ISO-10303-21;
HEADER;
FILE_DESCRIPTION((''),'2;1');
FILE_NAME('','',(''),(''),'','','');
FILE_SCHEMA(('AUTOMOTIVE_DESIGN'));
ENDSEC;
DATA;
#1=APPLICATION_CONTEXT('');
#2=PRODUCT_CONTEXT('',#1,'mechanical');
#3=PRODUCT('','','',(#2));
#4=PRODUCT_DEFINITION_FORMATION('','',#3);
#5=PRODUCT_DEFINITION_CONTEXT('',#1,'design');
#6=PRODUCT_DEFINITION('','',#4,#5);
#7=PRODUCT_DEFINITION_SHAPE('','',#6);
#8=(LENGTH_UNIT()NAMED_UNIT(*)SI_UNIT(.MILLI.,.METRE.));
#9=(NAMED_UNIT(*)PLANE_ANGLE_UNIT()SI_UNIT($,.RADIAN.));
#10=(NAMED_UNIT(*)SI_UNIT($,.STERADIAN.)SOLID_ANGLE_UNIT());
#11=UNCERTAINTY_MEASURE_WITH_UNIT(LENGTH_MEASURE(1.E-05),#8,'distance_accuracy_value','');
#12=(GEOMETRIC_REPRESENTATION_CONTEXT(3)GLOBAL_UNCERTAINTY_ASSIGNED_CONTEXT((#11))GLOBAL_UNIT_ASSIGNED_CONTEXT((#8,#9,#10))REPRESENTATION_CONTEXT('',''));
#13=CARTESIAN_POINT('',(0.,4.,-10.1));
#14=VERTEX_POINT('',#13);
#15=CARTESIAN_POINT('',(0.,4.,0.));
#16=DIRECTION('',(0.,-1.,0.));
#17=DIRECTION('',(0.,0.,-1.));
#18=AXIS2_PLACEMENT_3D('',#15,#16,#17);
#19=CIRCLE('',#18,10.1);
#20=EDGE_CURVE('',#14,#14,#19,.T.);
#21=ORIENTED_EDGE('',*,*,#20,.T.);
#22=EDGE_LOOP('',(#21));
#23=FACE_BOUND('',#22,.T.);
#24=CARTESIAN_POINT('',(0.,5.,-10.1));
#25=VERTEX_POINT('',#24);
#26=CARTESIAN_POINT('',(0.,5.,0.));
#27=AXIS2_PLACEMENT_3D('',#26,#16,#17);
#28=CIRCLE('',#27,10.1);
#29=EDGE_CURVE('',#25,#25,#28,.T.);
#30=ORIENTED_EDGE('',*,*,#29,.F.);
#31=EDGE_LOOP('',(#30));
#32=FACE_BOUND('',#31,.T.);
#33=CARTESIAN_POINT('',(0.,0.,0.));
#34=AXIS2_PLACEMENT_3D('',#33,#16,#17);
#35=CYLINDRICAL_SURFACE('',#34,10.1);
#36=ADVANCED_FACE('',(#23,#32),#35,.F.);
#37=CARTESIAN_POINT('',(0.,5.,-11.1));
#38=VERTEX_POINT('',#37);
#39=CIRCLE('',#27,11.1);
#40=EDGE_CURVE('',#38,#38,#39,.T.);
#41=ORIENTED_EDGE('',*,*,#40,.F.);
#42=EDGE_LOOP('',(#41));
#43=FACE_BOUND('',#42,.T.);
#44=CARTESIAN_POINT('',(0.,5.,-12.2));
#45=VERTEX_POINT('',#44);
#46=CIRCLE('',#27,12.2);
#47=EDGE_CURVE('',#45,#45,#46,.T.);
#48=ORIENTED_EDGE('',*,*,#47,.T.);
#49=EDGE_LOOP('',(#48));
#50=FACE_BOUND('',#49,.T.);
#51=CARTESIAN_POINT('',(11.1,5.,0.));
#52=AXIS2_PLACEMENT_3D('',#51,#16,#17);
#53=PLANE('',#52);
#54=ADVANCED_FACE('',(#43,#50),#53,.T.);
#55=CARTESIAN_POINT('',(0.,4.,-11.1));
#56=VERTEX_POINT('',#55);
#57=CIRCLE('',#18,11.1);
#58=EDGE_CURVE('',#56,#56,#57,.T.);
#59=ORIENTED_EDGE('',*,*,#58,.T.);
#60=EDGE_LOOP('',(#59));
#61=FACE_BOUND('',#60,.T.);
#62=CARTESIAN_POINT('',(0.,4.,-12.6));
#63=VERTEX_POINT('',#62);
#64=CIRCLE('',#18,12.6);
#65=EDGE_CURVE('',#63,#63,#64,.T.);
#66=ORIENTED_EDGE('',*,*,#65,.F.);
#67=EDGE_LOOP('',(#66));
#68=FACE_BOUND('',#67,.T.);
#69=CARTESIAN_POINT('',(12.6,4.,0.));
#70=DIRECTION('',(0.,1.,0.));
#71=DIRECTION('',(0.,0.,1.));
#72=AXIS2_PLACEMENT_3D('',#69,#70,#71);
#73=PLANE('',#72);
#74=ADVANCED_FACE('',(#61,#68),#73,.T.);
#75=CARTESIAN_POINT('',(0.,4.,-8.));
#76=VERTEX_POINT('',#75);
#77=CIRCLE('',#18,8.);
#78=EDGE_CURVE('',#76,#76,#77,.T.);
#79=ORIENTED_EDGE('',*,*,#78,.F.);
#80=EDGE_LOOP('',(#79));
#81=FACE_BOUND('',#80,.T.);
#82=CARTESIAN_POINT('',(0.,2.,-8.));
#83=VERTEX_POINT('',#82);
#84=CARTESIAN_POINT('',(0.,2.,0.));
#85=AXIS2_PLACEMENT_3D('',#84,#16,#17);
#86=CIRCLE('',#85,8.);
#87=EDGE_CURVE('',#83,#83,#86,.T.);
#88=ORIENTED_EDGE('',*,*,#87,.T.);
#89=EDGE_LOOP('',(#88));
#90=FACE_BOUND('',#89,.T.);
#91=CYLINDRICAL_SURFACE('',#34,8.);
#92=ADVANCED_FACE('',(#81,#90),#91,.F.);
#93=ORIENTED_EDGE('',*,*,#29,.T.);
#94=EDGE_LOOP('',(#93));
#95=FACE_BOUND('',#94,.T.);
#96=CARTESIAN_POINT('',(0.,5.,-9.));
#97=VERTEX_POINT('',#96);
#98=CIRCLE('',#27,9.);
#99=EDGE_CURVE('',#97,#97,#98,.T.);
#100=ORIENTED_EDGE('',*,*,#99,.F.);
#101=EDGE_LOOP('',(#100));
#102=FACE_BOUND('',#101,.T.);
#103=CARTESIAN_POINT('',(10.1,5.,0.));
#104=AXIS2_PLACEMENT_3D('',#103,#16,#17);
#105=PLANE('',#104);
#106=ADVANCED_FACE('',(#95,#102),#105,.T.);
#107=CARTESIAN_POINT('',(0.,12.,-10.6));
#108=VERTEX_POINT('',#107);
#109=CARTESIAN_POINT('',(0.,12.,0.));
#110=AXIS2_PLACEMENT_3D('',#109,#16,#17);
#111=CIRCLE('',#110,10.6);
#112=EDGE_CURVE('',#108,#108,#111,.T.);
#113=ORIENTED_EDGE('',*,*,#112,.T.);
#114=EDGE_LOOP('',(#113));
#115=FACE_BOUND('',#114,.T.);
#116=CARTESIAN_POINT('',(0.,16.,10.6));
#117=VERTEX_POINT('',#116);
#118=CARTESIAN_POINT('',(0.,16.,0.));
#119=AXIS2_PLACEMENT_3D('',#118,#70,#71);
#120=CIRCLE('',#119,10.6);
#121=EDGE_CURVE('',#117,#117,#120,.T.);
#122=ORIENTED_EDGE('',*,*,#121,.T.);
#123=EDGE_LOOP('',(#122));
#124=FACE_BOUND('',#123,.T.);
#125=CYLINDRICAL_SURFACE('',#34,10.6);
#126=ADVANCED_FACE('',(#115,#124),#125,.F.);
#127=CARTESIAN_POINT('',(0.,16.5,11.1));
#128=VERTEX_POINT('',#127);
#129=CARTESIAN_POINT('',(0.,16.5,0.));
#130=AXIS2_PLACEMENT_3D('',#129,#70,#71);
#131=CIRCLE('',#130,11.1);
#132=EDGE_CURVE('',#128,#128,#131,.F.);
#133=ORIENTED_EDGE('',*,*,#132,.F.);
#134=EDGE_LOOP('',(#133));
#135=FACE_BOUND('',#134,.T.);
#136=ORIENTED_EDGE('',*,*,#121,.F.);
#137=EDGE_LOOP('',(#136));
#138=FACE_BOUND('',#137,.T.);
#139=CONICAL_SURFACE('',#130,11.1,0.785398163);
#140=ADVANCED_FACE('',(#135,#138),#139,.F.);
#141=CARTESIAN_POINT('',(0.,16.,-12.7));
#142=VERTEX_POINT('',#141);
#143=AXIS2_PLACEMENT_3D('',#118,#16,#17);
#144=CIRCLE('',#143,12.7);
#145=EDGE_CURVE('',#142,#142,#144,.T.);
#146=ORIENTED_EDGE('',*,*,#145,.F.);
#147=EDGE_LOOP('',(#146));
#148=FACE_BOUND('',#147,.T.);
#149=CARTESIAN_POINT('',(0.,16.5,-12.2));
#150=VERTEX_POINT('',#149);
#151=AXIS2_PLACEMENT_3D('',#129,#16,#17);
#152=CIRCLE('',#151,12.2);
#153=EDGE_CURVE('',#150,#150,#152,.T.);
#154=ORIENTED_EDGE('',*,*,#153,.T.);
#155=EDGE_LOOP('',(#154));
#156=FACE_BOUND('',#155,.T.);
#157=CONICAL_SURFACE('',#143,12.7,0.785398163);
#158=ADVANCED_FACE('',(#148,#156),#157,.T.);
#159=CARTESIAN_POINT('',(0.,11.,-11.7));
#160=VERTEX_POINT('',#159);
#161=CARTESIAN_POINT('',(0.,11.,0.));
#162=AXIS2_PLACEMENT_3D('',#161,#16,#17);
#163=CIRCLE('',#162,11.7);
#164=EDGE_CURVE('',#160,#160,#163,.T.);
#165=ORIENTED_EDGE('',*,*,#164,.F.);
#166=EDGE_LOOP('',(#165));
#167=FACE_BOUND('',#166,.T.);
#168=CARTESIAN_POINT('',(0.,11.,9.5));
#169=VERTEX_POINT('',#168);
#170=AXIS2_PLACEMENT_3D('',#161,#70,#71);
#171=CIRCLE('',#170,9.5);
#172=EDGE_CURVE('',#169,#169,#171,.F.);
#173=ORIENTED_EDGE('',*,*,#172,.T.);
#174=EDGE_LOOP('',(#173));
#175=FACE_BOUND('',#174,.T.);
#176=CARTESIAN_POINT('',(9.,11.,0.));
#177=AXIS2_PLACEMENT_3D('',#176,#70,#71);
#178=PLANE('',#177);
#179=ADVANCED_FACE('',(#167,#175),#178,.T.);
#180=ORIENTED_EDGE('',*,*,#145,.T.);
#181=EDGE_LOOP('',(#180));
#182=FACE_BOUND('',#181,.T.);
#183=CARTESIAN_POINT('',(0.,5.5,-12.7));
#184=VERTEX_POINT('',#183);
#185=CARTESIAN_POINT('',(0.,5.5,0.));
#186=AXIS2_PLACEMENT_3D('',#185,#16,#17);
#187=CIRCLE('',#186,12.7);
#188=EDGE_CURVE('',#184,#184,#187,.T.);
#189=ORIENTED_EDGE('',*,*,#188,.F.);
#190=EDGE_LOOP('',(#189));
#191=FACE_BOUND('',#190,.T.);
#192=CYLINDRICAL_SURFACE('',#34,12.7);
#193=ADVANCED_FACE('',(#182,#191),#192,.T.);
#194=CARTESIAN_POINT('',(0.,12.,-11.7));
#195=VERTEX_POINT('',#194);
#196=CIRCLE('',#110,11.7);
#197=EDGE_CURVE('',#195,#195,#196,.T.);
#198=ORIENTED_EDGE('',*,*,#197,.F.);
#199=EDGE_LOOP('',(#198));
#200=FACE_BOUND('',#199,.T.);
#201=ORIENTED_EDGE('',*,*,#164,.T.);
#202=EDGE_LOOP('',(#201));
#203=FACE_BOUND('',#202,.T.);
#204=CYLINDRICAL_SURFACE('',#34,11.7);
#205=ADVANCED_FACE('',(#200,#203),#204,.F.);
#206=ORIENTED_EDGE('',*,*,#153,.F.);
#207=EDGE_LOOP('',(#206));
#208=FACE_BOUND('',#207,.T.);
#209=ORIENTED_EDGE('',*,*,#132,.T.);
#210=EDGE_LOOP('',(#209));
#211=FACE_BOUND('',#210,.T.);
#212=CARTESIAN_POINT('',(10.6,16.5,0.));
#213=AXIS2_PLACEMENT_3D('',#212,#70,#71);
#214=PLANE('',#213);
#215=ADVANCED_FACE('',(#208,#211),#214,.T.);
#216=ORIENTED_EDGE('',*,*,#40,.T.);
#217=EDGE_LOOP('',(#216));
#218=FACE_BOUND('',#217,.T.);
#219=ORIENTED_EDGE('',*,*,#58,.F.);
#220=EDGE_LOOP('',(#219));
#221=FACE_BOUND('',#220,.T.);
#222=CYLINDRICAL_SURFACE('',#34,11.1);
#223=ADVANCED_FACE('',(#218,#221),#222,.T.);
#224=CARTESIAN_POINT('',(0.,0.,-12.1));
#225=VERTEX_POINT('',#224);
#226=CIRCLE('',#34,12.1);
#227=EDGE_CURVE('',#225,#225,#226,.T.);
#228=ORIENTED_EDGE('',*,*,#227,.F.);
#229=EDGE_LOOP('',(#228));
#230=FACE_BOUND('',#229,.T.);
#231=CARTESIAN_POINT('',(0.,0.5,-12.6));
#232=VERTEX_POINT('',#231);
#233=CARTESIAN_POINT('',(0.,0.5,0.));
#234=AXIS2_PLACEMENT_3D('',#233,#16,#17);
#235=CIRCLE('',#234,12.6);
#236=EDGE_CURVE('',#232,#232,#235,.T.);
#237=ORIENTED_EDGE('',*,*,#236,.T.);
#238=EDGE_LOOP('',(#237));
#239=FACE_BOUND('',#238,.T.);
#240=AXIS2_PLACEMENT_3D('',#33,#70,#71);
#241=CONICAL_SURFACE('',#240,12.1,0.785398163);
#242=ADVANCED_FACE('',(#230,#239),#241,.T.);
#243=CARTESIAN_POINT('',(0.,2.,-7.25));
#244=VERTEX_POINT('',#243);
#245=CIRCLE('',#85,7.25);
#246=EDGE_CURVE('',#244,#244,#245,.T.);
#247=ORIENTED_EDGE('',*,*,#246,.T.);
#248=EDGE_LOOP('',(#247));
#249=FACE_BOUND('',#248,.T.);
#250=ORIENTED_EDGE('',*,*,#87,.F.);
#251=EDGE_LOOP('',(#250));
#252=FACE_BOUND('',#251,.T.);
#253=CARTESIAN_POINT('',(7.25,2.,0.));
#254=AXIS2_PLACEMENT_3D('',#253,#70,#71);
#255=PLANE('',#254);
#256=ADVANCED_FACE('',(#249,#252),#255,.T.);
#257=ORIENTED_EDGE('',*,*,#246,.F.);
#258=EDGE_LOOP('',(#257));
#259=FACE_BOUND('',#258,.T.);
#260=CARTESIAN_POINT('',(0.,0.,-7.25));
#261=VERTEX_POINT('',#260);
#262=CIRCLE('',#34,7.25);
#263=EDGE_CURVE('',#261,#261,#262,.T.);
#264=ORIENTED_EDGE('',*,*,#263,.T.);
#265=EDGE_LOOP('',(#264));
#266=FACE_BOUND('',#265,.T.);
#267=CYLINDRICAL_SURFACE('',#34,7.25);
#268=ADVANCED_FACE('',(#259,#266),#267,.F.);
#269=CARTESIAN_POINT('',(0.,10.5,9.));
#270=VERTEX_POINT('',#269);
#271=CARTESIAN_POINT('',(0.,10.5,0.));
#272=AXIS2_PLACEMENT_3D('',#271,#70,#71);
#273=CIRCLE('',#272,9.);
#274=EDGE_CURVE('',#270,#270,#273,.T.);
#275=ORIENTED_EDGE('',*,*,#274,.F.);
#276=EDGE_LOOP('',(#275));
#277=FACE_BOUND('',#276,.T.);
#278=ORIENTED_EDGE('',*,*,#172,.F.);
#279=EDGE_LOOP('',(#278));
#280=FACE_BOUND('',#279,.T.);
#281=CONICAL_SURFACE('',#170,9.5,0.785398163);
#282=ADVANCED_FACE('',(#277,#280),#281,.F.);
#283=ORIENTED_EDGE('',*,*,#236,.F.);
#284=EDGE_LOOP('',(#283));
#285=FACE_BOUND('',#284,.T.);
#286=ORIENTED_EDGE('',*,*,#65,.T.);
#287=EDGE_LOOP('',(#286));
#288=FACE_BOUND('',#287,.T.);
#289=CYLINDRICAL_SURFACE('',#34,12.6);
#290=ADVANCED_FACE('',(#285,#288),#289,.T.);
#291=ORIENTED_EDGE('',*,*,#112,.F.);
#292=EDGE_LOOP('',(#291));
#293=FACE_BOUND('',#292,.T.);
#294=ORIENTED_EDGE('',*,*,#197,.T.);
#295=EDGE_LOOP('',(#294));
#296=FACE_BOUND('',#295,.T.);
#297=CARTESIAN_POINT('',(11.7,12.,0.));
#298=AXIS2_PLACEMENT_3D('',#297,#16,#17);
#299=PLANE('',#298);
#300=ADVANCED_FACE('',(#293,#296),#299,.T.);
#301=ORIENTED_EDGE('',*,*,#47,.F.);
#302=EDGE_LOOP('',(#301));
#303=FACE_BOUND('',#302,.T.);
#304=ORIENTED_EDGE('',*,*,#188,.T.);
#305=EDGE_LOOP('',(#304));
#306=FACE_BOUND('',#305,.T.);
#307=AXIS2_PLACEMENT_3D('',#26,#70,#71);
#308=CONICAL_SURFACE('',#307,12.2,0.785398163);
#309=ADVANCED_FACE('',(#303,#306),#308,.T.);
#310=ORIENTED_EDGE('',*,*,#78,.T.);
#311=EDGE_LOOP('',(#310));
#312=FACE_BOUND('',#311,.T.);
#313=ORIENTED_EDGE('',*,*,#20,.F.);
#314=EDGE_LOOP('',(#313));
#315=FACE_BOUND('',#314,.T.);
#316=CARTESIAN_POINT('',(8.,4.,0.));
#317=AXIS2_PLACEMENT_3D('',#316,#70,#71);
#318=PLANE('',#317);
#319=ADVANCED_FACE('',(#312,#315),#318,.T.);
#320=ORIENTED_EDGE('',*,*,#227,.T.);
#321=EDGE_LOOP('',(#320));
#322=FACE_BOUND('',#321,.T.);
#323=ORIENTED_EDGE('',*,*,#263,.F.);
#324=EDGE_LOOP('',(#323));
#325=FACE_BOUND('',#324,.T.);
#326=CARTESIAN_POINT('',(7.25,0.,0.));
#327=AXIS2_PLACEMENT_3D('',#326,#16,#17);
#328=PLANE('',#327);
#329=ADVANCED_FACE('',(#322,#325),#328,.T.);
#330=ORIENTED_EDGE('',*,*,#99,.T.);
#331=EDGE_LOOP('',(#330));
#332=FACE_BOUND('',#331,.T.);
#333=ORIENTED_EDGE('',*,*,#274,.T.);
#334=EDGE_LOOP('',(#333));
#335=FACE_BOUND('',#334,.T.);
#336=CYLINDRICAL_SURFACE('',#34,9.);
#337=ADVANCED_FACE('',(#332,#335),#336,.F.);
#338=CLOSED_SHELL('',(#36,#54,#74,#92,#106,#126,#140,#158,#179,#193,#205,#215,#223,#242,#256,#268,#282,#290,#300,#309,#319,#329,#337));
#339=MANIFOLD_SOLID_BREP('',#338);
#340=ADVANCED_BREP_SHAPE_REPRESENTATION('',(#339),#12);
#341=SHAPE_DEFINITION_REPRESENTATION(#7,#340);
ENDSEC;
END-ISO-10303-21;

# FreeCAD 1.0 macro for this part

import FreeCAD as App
import Part
import Sketcher
from FreeCAD import Vector
Q = App.Units.Quantity


def edges_at(feature, points):
    """Names of the edges that pass closest to the given points."""
    edges = feature.Shape.Edges
    near = lambda p: min(range(len(edges)), key=lambda i: edges[i].distToShape(Part.Vertex(*p))[0])
    return sorted({f"Edge{near(p) + 1}" for p in points})


def add_polygon(sketch, points):
    """Adds a closed chain of lines whose ends are joined by coincident constraints."""
    first, n = sketch.GeometryCount, len(points)
    for a, b in zip(points, points[1:] + points[:1]):
        sketch.addGeometry(Part.LineSegment(App.Vector(*a, 0), App.Vector(*b, 0)), False)
    for i in range(n):
        sketch.addConstraint(Sketcher.Constraint("Coincident", first + i, 2, first + (i + 1) % n, 1))

doc = App.newDocument("Part")
body = doc.addObject("PartDesign::Body", "Body")

sketch1 = doc.addObject("Sketcher::SketchObject", "Sketch")
body.addObject(sketch1)
sketch1.AttachmentSupport = (doc.XY_Plane, [""])
sketch1.MapMode = "FlatFace"
add_polygon(sketch1, [(7.2, 2), (7.2, 0), (12.1, 0), (12.6, 0.5), (12.6, 4), (11.1, 4), (11.1, 5), (12.2, 5), (12.7, 5.5), (12.7, 16), (12.2, 16.5), (10.6, 16.5), (10.6, 12), (11.7, 12), (11.7, 11), (9, 11), (9, 5), (10.1, 5), (10.1, 4), (8, 4), (8, 2)])
sketch1.addConstraint(Sketcher.Constraint("Vertical", 0))
sketch1.addConstraint(Sketcher.Constraint("Horizontal", 1))
sketch1.addConstraint(Sketcher.Constraint("Vertical", 3))
sketch1.addConstraint(Sketcher.Constraint("Horizontal", 4))
sketch1.addConstraint(Sketcher.Constraint("Vertical", 5))
sketch1.addConstraint(Sketcher.Constraint("Horizontal", 6))
sketch1.addConstraint(Sketcher.Constraint("Vertical", 8))
sketch1.addConstraint(Sketcher.Constraint("Horizontal", 10))
sketch1.addConstraint(Sketcher.Constraint("Vertical", 11))
sketch1.addConstraint(Sketcher.Constraint("Horizontal", 12))
sketch1.addConstraint(Sketcher.Constraint("Vertical", 13))
sketch1.addConstraint(Sketcher.Constraint("Horizontal", 14))
sketch1.addConstraint(Sketcher.Constraint("Vertical", 15))
sketch1.addConstraint(Sketcher.Constraint("Horizontal", 16))
sketch1.addConstraint(Sketcher.Constraint("Vertical", 17))
sketch1.addConstraint(Sketcher.Constraint("Horizontal", 18))
sketch1.addConstraint(Sketcher.Constraint("Vertical", 19))
sketch1.addConstraint(Sketcher.Constraint("Horizontal", 20))
sketch1.addConstraint(Sketcher.Constraint("PointOnObject", 0, 2, -1))
sketch1.addConstraint(Sketcher.Constraint("Parallel", 2, 7))
sketch1.addConstraint(Sketcher.Constraint("Perpendicular", 7, 9))
sketch1.addConstraint(Sketcher.Constraint("Horizontal", 6, 2, 15, 2))
sketch1.addConstraint(Sketcher.Constraint("Horizontal", 4, 2, 17, 2))
sketch1.addConstraint(Sketcher.Constraint("Vertical", 6, 2, 9, 2))
sketch1.addConstraint(Sketcher.Constraint("Equal", 6, 12))
sketch1.addConstraint(Sketcher.Constraint("Equal", 12, 16))
sketch1.addConstraint(Sketcher.Constraint("Equal", 5, 13))
sketch1.addConstraint(Sketcher.Constraint("Equal", 0, 19))
sketch1.addConstraint(Sketcher.Constraint("Equal", 2, 7))
sketch1.addConstraint(Sketcher.Constraint("Equal", 7, 9))
sketch1.addConstraint(Sketcher.Constraint("DistanceY", 0, 2, 0, 1, Q("2 mm")))
sketch1.addConstraint(Sketcher.Constraint("DistanceY", 5, 1, 5, 2, Q("1 mm")))
sketch1.addConstraint(Sketcher.Constraint("DistanceY", 15, 2, 15, 1, Q("6 mm")))
sketch1.addConstraint(Sketcher.Constraint("DistanceX", 4, 2, 4, 1, Q("1.5 mm")))
sketch1.addConstraint(Sketcher.Constraint("DistanceX", 6, 1, 6, 2, Q("1.1 mm")))
sketch1.addConstraint(Sketcher.Constraint("DistanceX", 10, 2, 10, 1, Q("1.6 mm")))
sketch1.addConstraint(Sketcher.Constraint("DistanceX", 14, 2, 14, 1, Q("2.7 mm")))
sketch1.addConstraint(Sketcher.Constraint("DistanceX", 18, 2, 18, 1, Q("2.1 mm")))
sketch1.addConstraint(Sketcher.Constraint("DistanceY", 3, 1, 3, 2, Q("3.5 mm")))
sketch1.addConstraint(Sketcher.Constraint("DistanceY", 8, 1, 8, 2, Q("10.5 mm")))
sketch1.addConstraint(Sketcher.Constraint("DistanceX", -1, 1, 14, 2, Q("9 mm")))
sketch1.addConstraint(Sketcher.Constraint("DistanceX", 1, 1, 1, 2, Q("4.85 mm")))
revolution = doc.addObject("PartDesign::Revolution", "Revolution")
body.addObject(revolution)
revolution.Profile = sketch1
revolution.ReferenceAxis = (sketch1, ["V_Axis"])
revolution.Angle = 360
doc.recompute()

chamfer = doc.addObject("PartDesign::Chamfer", "Chamfer")
body.addObject(chamfer)
chamfer.Base = (revolution, edges_at(revolution, [(0, 11, 9), (0, 16.5, 10.6)]))
chamfer.Size = 0.5

doc.recompute()
